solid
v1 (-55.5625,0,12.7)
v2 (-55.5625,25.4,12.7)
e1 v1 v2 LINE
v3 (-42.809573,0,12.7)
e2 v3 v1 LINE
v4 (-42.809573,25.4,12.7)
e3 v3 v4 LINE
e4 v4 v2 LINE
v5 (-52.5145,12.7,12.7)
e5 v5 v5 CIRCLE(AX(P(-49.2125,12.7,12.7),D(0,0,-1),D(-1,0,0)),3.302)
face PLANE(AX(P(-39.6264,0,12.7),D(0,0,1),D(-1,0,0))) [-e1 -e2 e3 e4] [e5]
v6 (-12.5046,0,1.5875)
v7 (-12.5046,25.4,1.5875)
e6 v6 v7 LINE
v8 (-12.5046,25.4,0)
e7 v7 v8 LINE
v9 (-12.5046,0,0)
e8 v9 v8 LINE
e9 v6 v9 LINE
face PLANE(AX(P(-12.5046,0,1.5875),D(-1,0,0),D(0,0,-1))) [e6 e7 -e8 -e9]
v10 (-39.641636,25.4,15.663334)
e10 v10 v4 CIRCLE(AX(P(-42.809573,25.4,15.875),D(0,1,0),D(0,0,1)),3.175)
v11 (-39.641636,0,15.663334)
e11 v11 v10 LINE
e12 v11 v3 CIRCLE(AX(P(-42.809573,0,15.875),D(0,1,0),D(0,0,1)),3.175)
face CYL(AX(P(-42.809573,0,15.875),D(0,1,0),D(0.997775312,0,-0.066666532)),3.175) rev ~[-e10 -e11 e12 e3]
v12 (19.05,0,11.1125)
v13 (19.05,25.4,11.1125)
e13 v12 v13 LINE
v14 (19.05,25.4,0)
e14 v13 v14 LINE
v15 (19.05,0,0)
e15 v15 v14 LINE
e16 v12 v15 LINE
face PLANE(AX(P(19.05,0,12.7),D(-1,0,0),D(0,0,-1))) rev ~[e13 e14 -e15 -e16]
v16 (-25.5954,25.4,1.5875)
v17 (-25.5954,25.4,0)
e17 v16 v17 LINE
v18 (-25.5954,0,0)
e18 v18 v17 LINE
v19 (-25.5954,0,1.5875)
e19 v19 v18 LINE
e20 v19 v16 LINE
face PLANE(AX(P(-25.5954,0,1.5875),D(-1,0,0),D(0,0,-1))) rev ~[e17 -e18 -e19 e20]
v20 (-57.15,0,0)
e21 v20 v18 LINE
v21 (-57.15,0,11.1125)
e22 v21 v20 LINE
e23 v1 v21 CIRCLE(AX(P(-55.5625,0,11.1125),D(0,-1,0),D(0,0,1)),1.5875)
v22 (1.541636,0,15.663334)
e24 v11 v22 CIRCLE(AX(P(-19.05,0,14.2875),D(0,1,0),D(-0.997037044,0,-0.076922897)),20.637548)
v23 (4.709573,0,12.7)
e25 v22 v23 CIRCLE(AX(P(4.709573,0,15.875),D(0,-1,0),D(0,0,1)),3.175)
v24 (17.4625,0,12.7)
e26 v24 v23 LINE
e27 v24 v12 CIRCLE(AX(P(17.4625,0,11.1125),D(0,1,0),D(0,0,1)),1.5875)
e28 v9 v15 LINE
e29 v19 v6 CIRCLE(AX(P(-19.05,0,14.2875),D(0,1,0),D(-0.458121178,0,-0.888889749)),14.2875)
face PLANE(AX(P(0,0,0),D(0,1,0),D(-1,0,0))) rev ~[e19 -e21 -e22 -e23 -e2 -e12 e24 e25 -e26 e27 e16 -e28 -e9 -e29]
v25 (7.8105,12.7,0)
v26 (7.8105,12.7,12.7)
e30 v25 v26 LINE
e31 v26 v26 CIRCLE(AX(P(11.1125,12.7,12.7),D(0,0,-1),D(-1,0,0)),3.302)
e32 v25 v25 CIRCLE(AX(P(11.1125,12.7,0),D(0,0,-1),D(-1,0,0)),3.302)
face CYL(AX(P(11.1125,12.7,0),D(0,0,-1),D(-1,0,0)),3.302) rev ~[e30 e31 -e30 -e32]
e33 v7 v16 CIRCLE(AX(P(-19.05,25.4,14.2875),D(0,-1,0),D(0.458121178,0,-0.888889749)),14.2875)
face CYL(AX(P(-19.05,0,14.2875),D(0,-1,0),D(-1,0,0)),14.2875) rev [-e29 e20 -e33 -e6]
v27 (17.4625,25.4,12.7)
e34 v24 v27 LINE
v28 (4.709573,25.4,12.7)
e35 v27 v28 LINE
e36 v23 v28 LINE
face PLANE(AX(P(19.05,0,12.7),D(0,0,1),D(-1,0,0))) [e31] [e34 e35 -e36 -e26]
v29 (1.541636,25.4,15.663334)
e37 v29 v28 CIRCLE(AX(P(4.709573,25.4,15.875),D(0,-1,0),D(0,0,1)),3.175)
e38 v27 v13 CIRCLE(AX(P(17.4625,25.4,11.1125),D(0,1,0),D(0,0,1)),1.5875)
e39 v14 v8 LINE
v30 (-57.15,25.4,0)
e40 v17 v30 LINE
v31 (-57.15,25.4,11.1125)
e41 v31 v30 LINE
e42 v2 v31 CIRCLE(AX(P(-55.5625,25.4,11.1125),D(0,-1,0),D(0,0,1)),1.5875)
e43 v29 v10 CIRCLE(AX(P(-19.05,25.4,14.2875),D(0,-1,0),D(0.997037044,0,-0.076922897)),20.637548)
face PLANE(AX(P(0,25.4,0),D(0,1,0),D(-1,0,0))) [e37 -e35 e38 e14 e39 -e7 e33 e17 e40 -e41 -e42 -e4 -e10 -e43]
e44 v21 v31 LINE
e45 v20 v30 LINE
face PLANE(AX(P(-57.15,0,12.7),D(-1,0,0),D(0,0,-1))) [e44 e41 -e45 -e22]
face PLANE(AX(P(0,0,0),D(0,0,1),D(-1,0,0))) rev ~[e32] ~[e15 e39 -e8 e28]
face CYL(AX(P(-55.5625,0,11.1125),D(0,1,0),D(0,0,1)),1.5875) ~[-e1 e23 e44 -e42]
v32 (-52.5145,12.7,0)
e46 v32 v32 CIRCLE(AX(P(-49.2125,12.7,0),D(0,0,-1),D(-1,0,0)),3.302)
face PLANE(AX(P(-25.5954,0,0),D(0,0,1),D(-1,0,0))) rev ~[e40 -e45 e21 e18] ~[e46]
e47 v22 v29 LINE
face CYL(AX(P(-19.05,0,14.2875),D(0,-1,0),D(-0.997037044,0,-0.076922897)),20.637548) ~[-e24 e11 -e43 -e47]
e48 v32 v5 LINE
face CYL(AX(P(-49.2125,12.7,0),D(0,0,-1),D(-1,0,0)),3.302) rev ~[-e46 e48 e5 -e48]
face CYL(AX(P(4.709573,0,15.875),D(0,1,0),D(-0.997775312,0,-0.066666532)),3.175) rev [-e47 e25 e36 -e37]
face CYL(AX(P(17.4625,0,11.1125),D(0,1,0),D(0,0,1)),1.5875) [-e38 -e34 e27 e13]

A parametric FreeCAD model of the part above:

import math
import FreeCAD as App
import Part
import Sketcher

V = App.Vector
Q = App.Units.Quantity


def edges_at(feature, points):
    """Names of the edges that pass closest to the given points."""
    edges = feature.Shape.Edges
    near = lambda p: min(range(len(edges)), key=lambda i: edges[i].distToShape(Part.Vertex(*p))[0])
    return sorted({f"Edge{near(p) + 1}" for p in points})

doc = App.newDocument("Part")
body = doc.addObject("PartDesign::Body", "Body")

# Sketch on XZ plane
sketch1 = body.newObject("Sketcher::SketchObject", "Sketch")
sketch1.AttachmentSupport = (doc.getObject("XZ_Plane"), [""])
sketch1.MapMode = "FlatFace"
sketch1.addGeometry(Part.LineSegment(V(1.5, 12.7, 0), V(19.1, 12.7, 0)), False)
sketch1.addGeometry(Part.LineSegment(V(19.1, 12.7, 0), V(19.1, 0, 0)), False)
sketch1.addGeometry(Part.LineSegment(V(19.1, 0, 0), V(-12.5, 0, 0)), False)
sketch1.addGeometry(Part.LineSegment(V(-12.5, 0, 0), V(-12.5, 1.6, 0)), False)
sketch1.addGeometry(Part.ArcOfCircle(Part.Circle(V(-19.1, 14.3, 0), V(0, 0, 1), 14.3), math.radians(-63), math.radians(243)), False)
sketch1.addGeometry(Part.LineSegment(V(-25.6, 1.6, 0), V(-25.6, 0, 0)), False)
sketch1.addGeometry(Part.LineSegment(V(-25.6, 0, 0), V(-57.1, 0, 0)), False)
sketch1.addGeometry(Part.LineSegment(V(-57.1, 0, 0), V(-57.1, 12.7, 0)), False)
sketch1.addGeometry(Part.LineSegment(V(-57.1, 12.7, 0), V(-39.6, 12.7, 0)), False)
sketch1.addGeometry(Part.ArcOfCircle(Part.Circle(V(-19.1, 14.3, 0), V(0, 0, 1), 20.6), math.radians(-4), math.radians(184)), False)
sketch1.addConstraint(Sketcher.Constraint("Coincident", 0, 2, 1, 1))
sketch1.addConstraint(Sketcher.Constraint("Coincident", 1, 2, 2, 1))
sketch1.addConstraint(Sketcher.Constraint("Coincident", 2, 2, 3, 1))
sketch1.addConstraint(Sketcher.Constraint("Coincident", 3, 2, 4, 1))
sketch1.addConstraint(Sketcher.Constraint("Coincident", 4, 2, 5, 1))
sketch1.addConstraint(Sketcher.Constraint("Coincident", 5, 2, 6, 1))
sketch1.addConstraint(Sketcher.Constraint("Coincident", 6, 2, 7, 1))
sketch1.addConstraint(Sketcher.Constraint("Coincident", 7, 2, 8, 1))
sketch1.addConstraint(Sketcher.Constraint("Coincident", 8, 2, 9, 2))
sketch1.addConstraint(Sketcher.Constraint("Coincident", 9, 1, 0, 1))
sketch1.addConstraint(Sketcher.Constraint("Horizontal", 0))
sketch1.addConstraint(Sketcher.Constraint("Vertical", 1))
sketch1.addConstraint(Sketcher.Constraint("Horizontal", 2))
sketch1.addConstraint(Sketcher.Constraint("Vertical", 3))
sketch1.addConstraint(Sketcher.Constraint("Vertical", 5))
sketch1.addConstraint(Sketcher.Constraint("Horizontal", 6))
sketch1.addConstraint(Sketcher.Constraint("Vertical", 7))
sketch1.addConstraint(Sketcher.Constraint("Horizontal", 8))
sketch1.addConstraint(Sketcher.Constraint("Coincident", 9, 3, 4, 3))
sketch1.addConstraint(Sketcher.Constraint("PointOnObject", 1, 2, -1))
sketch1.addConstraint(Sketcher.Constraint("PointOnObject", 5, 2, -1))
sketch1.addConstraint(Sketcher.Constraint("Horizontal", 3, 2, 4, 2))
sketch1.addConstraint(Sketcher.Constraint("Horizontal", 0, 2, 7, 2))
sketch1.addConstraint(Sketcher.Constraint("Equal", 2, 6))
sketch1.addConstraint(Sketcher.Constraint("DistanceY", 1, 2, 1, 1, Q("0.5 in")))
sketch1.addConstraint(Sketcher.Constraint("Radius", 4, Q("0.5625 in")))
sketch1.addConstraint(Sketcher.Constraint("DistanceX", 4, 3, 0, 2, Q("1.5 in")))
sketch1.addConstraint(Sketcher.Constraint("DistanceY", 3, 2, 4, 3, Q("0.5 in")))
sketch1.addConstraint(Sketcher.Constraint("DistanceY", 3, 1, 3, 2, Q("0.0625 in")))
sketch1.addConstraint(Sketcher.Constraint("DistanceX", 4, 3, -1, 1, Q("0.75 in")))
sketch1.addConstraint(Sketcher.Constraint("Radius", 9, Q("0.8125 in")))
pad1 = body.newObject("PartDesign::Pad", "Pad")
pad1.Profile = sketch1
pad1.Length = Q("1 in")
pad1.Reversed = True
doc.recompute()

fillet = body.newObject("PartDesign::Fillet", "Fillet")
fillet.Base = (pad1, edges_at(pad1, [(-39.626, 12.7, 12.7), (1.526, 12.7, 12.7)]))
fillet.Radius = Q("0.125 in")
doc.recompute()

fillet2 = body.newObject("PartDesign::Fillet", "Fillet001")
fillet2.Base = (fillet, edges_at(fillet, [(19.05, 12.7, 12.7), (-57.15, 12.7, 12.7)]))
fillet2.Radius = Q("0.0625 in")

# Sketch on XY plane
sketch2 = body.newObject("Sketcher::SketchObject", "Sketch001")
sketch2.AttachmentSupport = (doc.getObject("XY_Plane"), [""])
sketch2.MapMode = "FlatFace"
sketch2.addGeometry(Part.Circle(V(11.1, 12.7, 0), V(0, 0, 1), 3.3), False)
sketch2.addGeometry(Part.Circle(V(-49.2, 12.7, 0), V(0, 0, 1), 3.3), False)
sketch2.addConstraint(Sketcher.Constraint("Equal", 0, 1))
sketch2.addConstraint(Sketcher.Constraint("Horizontal", 0, 3, 1, 3))
sketch2.addConstraint(Sketcher.Constraint("Diameter", 0, Q("0.26 in")))
sketch2.addConstraint(Sketcher.Constraint("DistanceX", 1, 3, 0, 3, Q("2.375 in")))
sketch2.addConstraint(Sketcher.Constraint("DistanceY", -1, 1, 0, 3, Q("0.5 in")))
sketch2.addConstraint(Sketcher.Constraint("DistanceX", -1, 1, 0, 3, Q("0.4375 in")))
pocket1 = body.newObject("PartDesign::Pocket", "Pocket")
pocket1.Profile = sketch2
pocket1.Type = "ThroughAll"
pocket1.Reversed = True

doc.recompute()
